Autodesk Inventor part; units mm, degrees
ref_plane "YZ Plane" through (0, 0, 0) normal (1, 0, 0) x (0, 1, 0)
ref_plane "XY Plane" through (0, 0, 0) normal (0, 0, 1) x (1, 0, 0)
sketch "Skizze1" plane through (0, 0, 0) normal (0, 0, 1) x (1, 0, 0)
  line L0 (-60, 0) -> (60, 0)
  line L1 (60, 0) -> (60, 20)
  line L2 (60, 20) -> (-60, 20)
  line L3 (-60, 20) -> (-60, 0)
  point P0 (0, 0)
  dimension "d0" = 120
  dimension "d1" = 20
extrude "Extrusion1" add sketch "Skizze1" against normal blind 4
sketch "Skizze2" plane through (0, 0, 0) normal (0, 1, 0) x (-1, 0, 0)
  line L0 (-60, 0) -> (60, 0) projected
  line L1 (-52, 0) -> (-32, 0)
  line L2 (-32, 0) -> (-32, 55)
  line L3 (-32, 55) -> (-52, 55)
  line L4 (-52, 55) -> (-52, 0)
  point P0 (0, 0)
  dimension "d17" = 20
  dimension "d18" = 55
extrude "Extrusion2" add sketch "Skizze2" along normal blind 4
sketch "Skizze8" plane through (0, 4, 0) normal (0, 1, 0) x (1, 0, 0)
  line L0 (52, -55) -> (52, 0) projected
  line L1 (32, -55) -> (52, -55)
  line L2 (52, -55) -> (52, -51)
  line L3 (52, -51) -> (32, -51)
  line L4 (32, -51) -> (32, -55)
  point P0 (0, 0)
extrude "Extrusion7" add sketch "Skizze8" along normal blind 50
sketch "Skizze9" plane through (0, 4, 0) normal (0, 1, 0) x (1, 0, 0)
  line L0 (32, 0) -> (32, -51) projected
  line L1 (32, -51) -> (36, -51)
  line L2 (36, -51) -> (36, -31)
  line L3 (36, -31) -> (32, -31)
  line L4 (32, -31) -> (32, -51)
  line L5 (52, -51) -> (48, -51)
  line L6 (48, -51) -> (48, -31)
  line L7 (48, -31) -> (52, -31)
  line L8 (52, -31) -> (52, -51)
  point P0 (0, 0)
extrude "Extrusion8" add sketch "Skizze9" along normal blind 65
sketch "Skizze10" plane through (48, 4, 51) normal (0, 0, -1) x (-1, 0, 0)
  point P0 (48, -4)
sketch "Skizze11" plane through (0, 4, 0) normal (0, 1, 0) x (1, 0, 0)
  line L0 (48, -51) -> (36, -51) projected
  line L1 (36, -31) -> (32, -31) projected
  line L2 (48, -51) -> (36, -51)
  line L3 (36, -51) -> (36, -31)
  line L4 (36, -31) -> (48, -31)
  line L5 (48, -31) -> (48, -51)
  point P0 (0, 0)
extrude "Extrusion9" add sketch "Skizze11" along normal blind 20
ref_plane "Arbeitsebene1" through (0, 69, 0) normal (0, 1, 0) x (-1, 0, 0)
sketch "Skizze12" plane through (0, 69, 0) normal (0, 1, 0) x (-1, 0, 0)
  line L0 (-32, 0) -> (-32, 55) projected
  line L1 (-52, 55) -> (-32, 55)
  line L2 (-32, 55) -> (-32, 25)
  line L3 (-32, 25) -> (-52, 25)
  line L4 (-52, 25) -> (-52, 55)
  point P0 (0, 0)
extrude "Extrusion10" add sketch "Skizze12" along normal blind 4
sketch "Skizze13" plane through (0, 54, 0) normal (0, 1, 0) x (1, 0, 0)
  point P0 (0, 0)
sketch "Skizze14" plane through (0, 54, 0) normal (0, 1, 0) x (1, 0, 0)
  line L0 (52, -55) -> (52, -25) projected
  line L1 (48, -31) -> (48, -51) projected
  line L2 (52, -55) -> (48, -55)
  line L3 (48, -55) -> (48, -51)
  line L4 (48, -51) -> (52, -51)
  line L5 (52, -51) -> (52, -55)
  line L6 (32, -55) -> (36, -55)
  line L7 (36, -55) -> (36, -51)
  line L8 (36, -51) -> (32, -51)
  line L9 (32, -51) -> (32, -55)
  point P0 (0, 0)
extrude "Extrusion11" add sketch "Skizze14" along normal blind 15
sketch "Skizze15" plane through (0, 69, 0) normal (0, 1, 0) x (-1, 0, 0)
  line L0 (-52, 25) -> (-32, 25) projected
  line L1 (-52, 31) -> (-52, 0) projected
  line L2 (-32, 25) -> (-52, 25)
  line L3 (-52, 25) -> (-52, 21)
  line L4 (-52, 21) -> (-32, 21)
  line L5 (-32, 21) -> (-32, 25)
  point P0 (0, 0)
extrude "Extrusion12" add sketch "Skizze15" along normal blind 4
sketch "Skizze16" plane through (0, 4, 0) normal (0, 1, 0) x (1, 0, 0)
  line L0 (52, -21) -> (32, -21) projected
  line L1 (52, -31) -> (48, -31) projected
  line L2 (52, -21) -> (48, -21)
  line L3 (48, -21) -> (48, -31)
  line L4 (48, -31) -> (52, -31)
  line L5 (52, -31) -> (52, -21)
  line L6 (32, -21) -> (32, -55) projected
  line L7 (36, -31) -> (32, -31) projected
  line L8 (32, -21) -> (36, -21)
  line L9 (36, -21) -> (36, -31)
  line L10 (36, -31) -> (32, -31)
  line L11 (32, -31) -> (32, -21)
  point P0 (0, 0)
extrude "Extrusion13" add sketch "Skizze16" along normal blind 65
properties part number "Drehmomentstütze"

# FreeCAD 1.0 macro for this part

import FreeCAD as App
import Part
import Sketcher
from FreeCAD import Vector


def add_polygon(sketch, points):
    """Adds a closed chain of lines whose ends are joined by coincident constraints."""
    first, n = sketch.GeometryCount, len(points)
    for a, b in zip(points, points[1:] + points[:1]):
        sketch.addGeometry(Part.LineSegment(App.Vector(*a, 0), App.Vector(*b, 0)), False)
    for i in range(n):
        sketch.addConstraint(Sketcher.Constraint("Coincident", first + i, 2, first + (i + 1) % n, 1))

doc = App.newDocument("Part")
body = doc.addObject("PartDesign::Body", "Body")

sketch1 = doc.addObject("Sketcher::SketchObject", "Sketch")
body.addObject(sketch1)
sketch1.AttachmentSupport = (doc.XY_Plane, [""])
sketch1.MapMode = "FlatFace"
add_polygon(sketch1, [(-60, 20), (-60, 0), (60, 0), (60, 20)])
sketch1.addConstraint([
    Sketcher.Constraint("Vertical", 0),
    Sketcher.Constraint("Horizontal", 1),
    Sketcher.Constraint("Vertical", 2),
    Sketcher.Constraint("Horizontal", 3),
    Sketcher.Constraint("Symmetric", 0, 2, 1, 2, -1, 1),
    Sketcher.Constraint("DistanceX", 1, 1, 1, 2, 120.0),
    Sketcher.Constraint("DistanceY", 0, 2, 0, 1, 20.0),
])
pad1 = doc.addObject("PartDesign::Pad", "Pad")
body.addObject(pad1)
pad1.Profile = sketch1
pad1.Length = 4
pad1.Reversed = True

sketch2 = doc.addObject("Sketcher::SketchObject", "Sketch001")
body.addObject(sketch2)
sketch2.AttachmentSupport = (doc.XZ_Plane, [""])
sketch2.MapMode = "FlatFace"
add_polygon(sketch2, [(52, 55), (52, 0), (32, 0), (32, 55)])
sketch2.addConstraint([
    Sketcher.Constraint("Vertical", 0),
    Sketcher.Constraint("Horizontal", 1),
    Sketcher.Constraint("Vertical", 2),
    Sketcher.Constraint("Horizontal", 3),
    Sketcher.Constraint("PointOnObject", 0, 2, -1),
    Sketcher.Constraint("DistanceX", 1, 2, 1, 1, 20.0),
    Sketcher.Constraint("DistanceY", 0, 2, 0, 1, 55.0),
    Sketcher.Constraint("DistanceX", -1, 1, 0, 2, 52.0),
])
pad2 = doc.addObject("PartDesign::Pad", "Pad001")
body.addObject(pad2)
pad2.Profile = sketch2
pad2.Length = 4
pad2.Reversed = True

sketch3 = doc.addObject("Sketcher::SketchObject", "Sketch002")
body.addObject(sketch3)
sketch3.AttachmentSupport = (doc.XZ_Plane, [""])
sketch3.MapMode = "FlatFace"
sketch3.AttachmentOffset = App.Placement(Vector(0, 0, -4), App.Rotation())
add_polygon(sketch3, [(32, 55), (52, 55), (52, 51), (32, 51)])
sketch3.addConstraint([
    Sketcher.Constraint("Horizontal", 0),
    Sketcher.Constraint("Vertical", 1),
    Sketcher.Constraint("Horizontal", 2),
    Sketcher.Constraint("Vertical", 3),
    Sketcher.Constraint("DistanceX", 0, 1, 0, 2, 20.0),
    Sketcher.Constraint("DistanceY", 1, 2, 1, 1, 4.0),
    Sketcher.Constraint("DistanceX", -1, 1, 0, 2, 52.0),
    Sketcher.Constraint("DistanceY", -1, 1, 0, 2, 55.0),
])
pad3 = doc.addObject("PartDesign::Pad", "Pad002")
body.addObject(pad3)
pad3.Profile = sketch3
pad3.Length = 50
pad3.Reversed = True

sketch4 = doc.addObject("Sketcher::SketchObject", "Sketch003")
body.addObject(sketch4)
sketch4.AttachmentSupport = (doc.XZ_Plane, [""])
sketch4.MapMode = "FlatFace"
sketch4.AttachmentOffset = App.Placement(Vector(0, 0, -4), App.Rotation())
add_polygon(sketch4, [(36, 31), (32, 31), (32, 51), (36, 51)])
add_polygon(sketch4, [(48, 51), (52, 51), (52, 31), (48, 31)])
sketch4.addConstraint([
    Sketcher.Constraint("Horizontal", 0),
    Sketcher.Constraint("Vertical", 1),
    Sketcher.Constraint("Horizontal", 2),
    Sketcher.Constraint("Vertical", 3),
    Sketcher.Constraint("Horizontal", 4),
    Sketcher.Constraint("Vertical", 5),
    Sketcher.Constraint("Horizontal", 6),
    Sketcher.Constraint("Vertical", 7),
    Sketcher.Constraint("Horizontal", 2, 2, 4, 2),
    Sketcher.Constraint("Horizontal", 3, 2, 5, 2),
    Sketcher.Constraint("Equal", 2, 4),
    Sketcher.Constraint("DistanceX", 0, 2, 0, 1, 4.0),
    Sketcher.Constraint("DistanceY", 1, 1, 1, 2, 20.0),
    Sketcher.Constraint("DistanceX", -1, 1, 0, 2, 32.0),
    Sketcher.Constraint("DistanceY", -1, 1, 0, 2, 31.0),
    Sketcher.Constraint("DistanceX", -1, 1, 4, 2, 52.0),
])
pad4 = doc.addObject("PartDesign::Pad", "Pad003")
body.addObject(pad4)
pad4.Profile = sketch4
pad4.Length = 65
pad4.Reversed = True

sketch5 = doc.addObject("Sketcher::SketchObject", "Sketch004")
body.addObject(sketch5)
sketch5.AttachmentSupport = (doc.XZ_Plane, [""])
sketch5.MapMode = "FlatFace"
sketch5.AttachmentOffset = App.Placement(Vector(0, 0, -4), App.Rotation())
add_polygon(sketch5, [(36, 51), (48, 51), (48, 31), (36, 31)])
sketch5.addConstraint([
    Sketcher.Constraint("Horizontal", 0),
    Sketcher.Constraint("Vertical", 1),
    Sketcher.Constraint("Horizontal", 2),
    Sketcher.Constraint("Vertical", 3),
    Sketcher.Constraint("DistanceX", 0, 1, 0, 2, 12.0),
    Sketcher.Constraint("DistanceY", 1, 2, 1, 1, 20.0),
    Sketcher.Constraint("DistanceX", -1, 1, 0, 2, 48.0),
    Sketcher.Constraint("DistanceY", -1, 1, 0, 2, 51.0),
])
pad5 = doc.addObject("PartDesign::Pad", "Pad004")
body.addObject(pad5)
pad5.Profile = sketch5
pad5.Length = 20
pad5.Reversed = True

sketch6 = doc.addObject("Sketcher::SketchObject", "Sketch005")
body.addObject(sketch6)
sketch6.AttachmentSupport = (doc.XZ_Plane, [""])
sketch6.MapMode = "FlatFace"
sketch6.AttachmentOffset = App.Placement(Vector(0, 0, -69), App.Rotation())
add_polygon(sketch6, [(52, 25), (32, 25), (32, 55), (52, 55)])
sketch6.addConstraint([
    Sketcher.Constraint("Horizontal", 0),
    Sketcher.Constraint("Vertical", 1),
    Sketcher.Constraint("Horizontal", 2),
    Sketcher.Constraint("Vertical", 3),
    Sketcher.Constraint("DistanceX", 0, 2, 0, 1, 20.0),
    Sketcher.Constraint("DistanceY", 1, 1, 1, 2, 30.0),
    Sketcher.Constraint("DistanceX", -1, 1, 0, 2, 32.0),
    Sketcher.Constraint("DistanceY", -1, 1, 0, 2, 25.0),
])
pad6 = doc.addObject("PartDesign::Pad", "Pad005")
body.addObject(pad6)
pad6.Profile = sketch6
pad6.Length = 4
pad6.Reversed = True

sketch7 = doc.addObject("Sketcher::SketchObject", "Sketch006")
body.addObject(sketch7)
sketch7.AttachmentSupport = (doc.XZ_Plane, [""])
sketch7.MapMode = "FlatFace"
sketch7.AttachmentOffset = App.Placement(Vector(0, 0, -54), App.Rotation())
add_polygon(sketch7, [(48, 55), (52, 55), (52, 51), (48, 51)])
add_polygon(sketch7, [(32, 51), (32, 55), (36, 55), (36, 51)])
sketch7.addConstraint([
    Sketcher.Constraint("Horizontal", 0),
    Sketcher.Constraint("Vertical", 1),
    Sketcher.Constraint("Horizontal", 2),
    Sketcher.Constraint("Vertical", 3),
    Sketcher.Constraint("Vertical", 4),
    Sketcher.Constraint("Horizontal", 5),
    Sketcher.Constraint("Vertical", 6),
    Sketcher.Constraint("Horizontal", 7),
    Sketcher.Constraint("Horizontal", 3, 2, 4, 2),
    Sketcher.Constraint("Horizontal", 2, 2, 6, 2),
    Sketcher.Constraint("Equal", 2, 5),
    Sketcher.Constraint("Equal", 7, 1),
    Sketcher.Constraint("DistanceX", 0, 1, 0, 2, 4.0),
    Sketcher.Constraint("DistanceX", -1, 1, 0, 2, 52.0),
    Sketcher.Constraint("DistanceY", -1, 1, 0, 2, 55.0),
    Sketcher.Constraint("DistanceX", -1, 1, 4, 2, 32.0),
])
pad7 = doc.addObject("PartDesign::Pad", "Pad006")
body.addObject(pad7)
pad7.Profile = sketch7
pad7.Length = 15
pad7.Reversed = True

sketch8 = doc.addObject("Sketcher::SketchObject", "Sketch007")
body.addObject(sketch8)
sketch8.AttachmentSupport = (doc.XZ_Plane, [""])
sketch8.MapMode = "FlatFace"
sketch8.AttachmentOffset = App.Placement(Vector(0, 0, -69), App.Rotation())
add_polygon(sketch8, [(32, 25), (52, 25), (52, 21), (32, 21)])
sketch8.addConstraint([
    Sketcher.Constraint("Horizontal", 0),
    Sketcher.Constraint("Vertical", 1),
    Sketcher.Constraint("Horizontal", 2),
    Sketcher.Constraint("Vertical", 3),
    Sketcher.Constraint("DistanceX", 0, 1, 0, 2, 20.0),
    Sketcher.Constraint("DistanceY", 1, 2, 1, 1, 4.0),
    Sketcher.Constraint("DistanceX", -1, 1, 0, 2, 52.0),
    Sketcher.Constraint("DistanceY", -1, 1, 0, 2, 25.0),
])
pad8 = doc.addObject("PartDesign::Pad", "Pad007")
body.addObject(pad8)
pad8.Profile = sketch8
pad8.Length = 4
pad8.Reversed = True

sketch9 = doc.addObject("Sketcher::SketchObject", "Sketch008")
body.addObject(sketch9)
sketch9.AttachmentSupport = (doc.XZ_Plane, [""])
sketch9.MapMode = "FlatFace"
sketch9.AttachmentOffset = App.Placement(Vector(0, 0, -4), App.Rotation())
add_polygon(sketch9, [(52, 31), (52, 21), (48, 21), (48, 31)])
add_polygon(sketch9, [(36, 31), (36, 21), (32, 21), (32, 31)])
sketch9.addConstraint([
    Sketcher.Constraint("Vertical", 0),
    Sketcher.Constraint("Horizontal", 1),
    Sketcher.Constraint("Vertical", 2),
    Sketcher.Constraint("Horizontal", 3),
    Sketcher.Constraint("Vertical", 4),
    Sketcher.Constraint("Horizontal", 5),
    Sketcher.Constraint("Vertical", 6),
    Sketcher.Constraint("Horizontal", 7),
    Sketcher.Constraint("Horizontal", 1, 2, 4, 2),
    Sketcher.Constraint("Horizontal", 3, 2, 6, 2),
    Sketcher.Constraint("Equal", 3, 5),
    Sketcher.Constraint("DistanceX", 1, 2, 1, 1, 4.0),
    Sketcher.Constraint("DistanceY", 0, 2, 0, 1, 10.0),
    Sketcher.Constraint("DistanceX", -1, 1, 0, 2, 52.0),
    Sketcher.Constraint("DistanceY", -1, 1, 0, 2, 21.0),
    Sketcher.Constraint("DistanceX", -1, 1, 4, 2, 36.0),
])
pad9 = doc.addObject("PartDesign::Pad", "Pad008")
body.addObject(pad9)
pad9.Profile = sketch9
pad9.Length = 65
pad9.Reversed = True

doc.recompute()
